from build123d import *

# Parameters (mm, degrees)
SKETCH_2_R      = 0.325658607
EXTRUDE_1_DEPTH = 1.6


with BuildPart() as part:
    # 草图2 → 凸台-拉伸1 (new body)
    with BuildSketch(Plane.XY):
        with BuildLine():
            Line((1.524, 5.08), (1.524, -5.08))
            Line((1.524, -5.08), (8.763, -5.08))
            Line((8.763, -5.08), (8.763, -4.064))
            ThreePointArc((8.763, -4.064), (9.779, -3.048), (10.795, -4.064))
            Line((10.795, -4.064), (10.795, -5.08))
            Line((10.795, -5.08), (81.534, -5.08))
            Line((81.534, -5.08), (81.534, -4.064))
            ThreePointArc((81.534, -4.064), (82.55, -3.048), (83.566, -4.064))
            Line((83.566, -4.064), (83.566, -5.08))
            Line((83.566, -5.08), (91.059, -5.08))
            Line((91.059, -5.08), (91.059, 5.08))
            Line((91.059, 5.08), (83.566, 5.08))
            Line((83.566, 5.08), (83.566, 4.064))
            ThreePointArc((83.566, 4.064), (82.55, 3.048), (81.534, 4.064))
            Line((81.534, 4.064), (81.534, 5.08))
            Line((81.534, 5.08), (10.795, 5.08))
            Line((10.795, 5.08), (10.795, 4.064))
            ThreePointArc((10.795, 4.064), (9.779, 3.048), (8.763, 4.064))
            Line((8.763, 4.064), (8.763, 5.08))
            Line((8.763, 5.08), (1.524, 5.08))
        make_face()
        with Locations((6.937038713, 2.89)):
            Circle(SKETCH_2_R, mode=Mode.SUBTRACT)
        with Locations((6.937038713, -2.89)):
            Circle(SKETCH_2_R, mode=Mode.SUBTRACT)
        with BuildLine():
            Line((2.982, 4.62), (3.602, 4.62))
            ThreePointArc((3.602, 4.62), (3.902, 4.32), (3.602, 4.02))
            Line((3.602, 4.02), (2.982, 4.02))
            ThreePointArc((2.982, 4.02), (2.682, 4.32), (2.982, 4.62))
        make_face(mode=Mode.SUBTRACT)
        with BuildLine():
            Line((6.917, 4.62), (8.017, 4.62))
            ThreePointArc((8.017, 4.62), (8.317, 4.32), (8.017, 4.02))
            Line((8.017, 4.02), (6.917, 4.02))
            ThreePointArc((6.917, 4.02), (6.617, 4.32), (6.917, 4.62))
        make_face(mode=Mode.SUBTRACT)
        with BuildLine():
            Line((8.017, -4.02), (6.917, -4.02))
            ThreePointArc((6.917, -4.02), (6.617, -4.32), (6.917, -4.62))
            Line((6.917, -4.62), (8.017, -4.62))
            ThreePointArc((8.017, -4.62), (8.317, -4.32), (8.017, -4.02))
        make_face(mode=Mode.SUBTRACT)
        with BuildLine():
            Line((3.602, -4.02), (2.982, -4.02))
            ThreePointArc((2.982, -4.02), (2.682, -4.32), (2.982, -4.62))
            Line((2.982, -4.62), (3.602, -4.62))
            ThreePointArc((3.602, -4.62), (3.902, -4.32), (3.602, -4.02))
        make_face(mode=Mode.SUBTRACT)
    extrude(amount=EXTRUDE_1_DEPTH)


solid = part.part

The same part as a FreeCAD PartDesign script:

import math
import FreeCAD as App
import Part
import Sketcher

V = App.Vector
Q = App.Units.Quantity

doc = App.newDocument("Part")
body = doc.addObject("PartDesign::Body", "Body")

sketch1 = body.newObject("Sketcher::SketchObject", "Sketch")
sketch1.AttachmentSupport = (doc.getObject("XY_Plane"), [""])
sketch1.MapMode = "FlatFace"
sketch1.addGeometry(Part.LineSegment(V(1.52, 5.08, 0), V(1.52, -5.08, 0)), False)
sketch1.addGeometry(Part.LineSegment(V(1.52, -5.08, 0), V(8.76, -5.08, 0)), False)
sketch1.addGeometry(Part.LineSegment(V(8.76, -5.08, 0), V(8.76, -4.06, 0)), False)
sketch1.addGeometry(Part.ArcOfCircle(Part.Circle(V(9.78, -4.06, 0), V(0, 0, 1), 1.02), math.radians(0), math.radians(180)), False)
sketch1.addGeometry(Part.LineSegment(V(10.79, -4.06, 0), V(10.79, -5.08, 0)), False)
sketch1.addGeometry(Part.LineSegment(V(10.79, -5.08, 0), V(81.53, -5.08, 0)), False)
sketch1.addGeometry(Part.LineSegment(V(81.53, -5.08, 0), V(81.53, -4.06, 0)), False)
sketch1.addGeometry(Part.ArcOfCircle(Part.Circle(V(82.55, -4.06, 0), V(0, 0, 1), 1.02), math.radians(0), math.radians(180)), False)
sketch1.addGeometry(Part.LineSegment(V(83.57, -4.06, 0), V(83.57, -5.08, 0)), False)
sketch1.addGeometry(Part.LineSegment(V(83.57, -5.08, 0), V(91.06, -5.08, 0)), False)
sketch1.addGeometry(Part.LineSegment(V(91.06, -5.08, 0), V(91.06, 5.08, 0)), False)
sketch1.addGeometry(Part.LineSegment(V(91.06, 5.08, 0), V(83.57, 5.08, 0)), False)
sketch1.addGeometry(Part.LineSegment(V(83.57, 5.08, 0), V(83.57, 4.06, 0)), False)
sketch1.addGeometry(Part.ArcOfCircle(Part.Circle(V(82.55, 4.06, 0), V(0, 0, 1), 1.02), math.radians(180), math.radians(360)), False)
sketch1.addGeometry(Part.LineSegment(V(81.53, 4.06, 0), V(81.53, 5.08, 0)), False)
sketch1.addGeometry(Part.LineSegment(V(81.53, 5.08, 0), V(10.79, 5.08, 0)), False)
sketch1.addGeometry(Part.LineSegment(V(10.79, 5.08, 0), V(10.79, 4.06, 0)), False)
sketch1.addGeometry(Part.ArcOfCircle(Part.Circle(V(9.78, 4.06, 0), V(0, 0, 1), 1.02), math.radians(180), math.radians(360)), False)
sketch1.addGeometry(Part.LineSegment(V(8.76, 4.06, 0), V(8.76, 5.08, 0)), False)
sketch1.addGeometry(Part.LineSegment(V(8.76, 5.08, 0), V(1.52, 5.08, 0)), False)
sketch1.addGeometry(Part.LineSegment(V(2.98, -4.02, 0), V(3.6, -4.02, 0)), False)
sketch1.addGeometry(Part.ArcOfCircle(Part.Circle(V(3.6, -4.32, 0), V(0, 0, 1), 0.3), math.radians(-90), math.radians(90)), False)
sketch1.addGeometry(Part.LineSegment(V(3.6, -4.62, 0), V(2.98, -4.62, 0)), False)
sketch1.addGeometry(Part.ArcOfCircle(Part.Circle(V(2.98, -4.32, 0), V(0, 0, 1), 0.3), math.radians(90), math.radians(270)), False)
sketch1.addGeometry(Part.LineSegment(V(6.92, -4.02, 0), V(8.02, -4.02, 0)), False)
sketch1.addGeometry(Part.ArcOfCircle(Part.Circle(V(8.02, -4.32, 0), V(0, 0, 1), 0.3), math.radians(-90), math.radians(90)), False)
sketch1.addGeometry(Part.LineSegment(V(8.02, -4.62, 0), V(6.92, -4.62, 0)), False)
sketch1.addGeometry(Part.ArcOfCircle(Part.Circle(V(6.92, -4.32, 0), V(0, 0, 1), 0.3), math.radians(90), math.radians(270)), False)
sketch1.addGeometry(Part.Circle(V(6.94, -2.89, 0), V(0, 0, 1), 0.33), False)
sketch1.addGeometry(Part.ArcOfCircle(Part.Circle(V(2.98, 4.32, 0), V(0, 0, 1), 0.3), math.radians(90), math.radians(270)), False)
sketch1.addGeometry(Part.LineSegment(V(2.98, 4.62, 0), V(3.6, 4.62, 0)), False)
sketch1.addGeometry(Part.ArcOfCircle(Part.Circle(V(3.6, 4.32, 0), V(0, 0, 1), 0.3), math.radians(-90), math.radians(90)), False)
sketch1.addGeometry(Part.LineSegment(V(3.6, 4.02, 0), V(2.98, 4.02, 0)), False)
sketch1.addGeometry(Part.Circle(V(6.94, 2.89, 0), V(0, 0, 1), 0.33), False)
sketch1.addGeometry(Part.ArcOfCircle(Part.Circle(V(6.92, 4.32, 0), V(0, 0, 1), 0.3), math.radians(90), math.radians(270)), False)
sketch1.addGeometry(Part.LineSegment(V(6.92, 4.62, 0), V(8.02, 4.62, 0)), False)
sketch1.addGeometry(Part.ArcOfCircle(Part.Circle(V(8.02, 4.32, 0), V(0, 0, 1), 0.3), math.radians(-90), math.radians(90)), False)
sketch1.addGeometry(Part.LineSegment(V(8.02, 4.02, 0), V(6.92, 4.02, 0)), False)
sketch1.addConstraint(Sketcher.Constraint("Coincident", 0, 2, 1, 1))
sketch1.addConstraint(Sketcher.Constraint("Coincident", 1, 2, 2, 1))
sketch1.addConstraint(Sketcher.Constraint("Tangent", 2, 2, 3, 2))
sketch1.addConstraint(Sketcher.Constraint("Tangent", 3, 1, 4, 1))
sketch1.addConstraint(Sketcher.Constraint("Coincident", 4, 2, 5, 1))
sketch1.addConstraint(Sketcher.Constraint("Coincident", 5, 2, 6, 1))
sketch1.addConstraint(Sketcher.Constraint("Tangent", 6, 2, 7, 2))
sketch1.addConstraint(Sketcher.Constraint("Tangent", 7, 1, 8, 1))
sketch1.addConstraint(Sketcher.Constraint("Coincident", 8, 2, 9, 1))
sketch1.addConstraint(Sketcher.Constraint("Coincident", 9, 2, 10, 1))
sketch1.addConstraint(Sketcher.Constraint("Coincident", 10, 2, 11, 1))
sketch1.addConstraint(Sketcher.Constraint("Coincident", 11, 2, 12, 1))
sketch1.addConstraint(Sketcher.Constraint("Tangent", 12, 2, 13, 2))
sketch1.addConstraint(Sketcher.Constraint("Tangent", 13, 1, 14, 1))
sketch1.addConstraint(Sketcher.Constraint("Coincident", 14, 2, 15, 1))
sketch1.addConstraint(Sketcher.Constraint("Coincident", 15, 2, 16, 1))
sketch1.addConstraint(Sketcher.Constraint("Tangent", 16, 2, 17, 2))
sketch1.addConstraint(Sketcher.Constraint("Tangent", 17, 1, 18, 1))
sketch1.addConstraint(Sketcher.Constraint("Coincident", 18, 2, 19, 1))
sketch1.addConstraint(Sketcher.Constraint("Coincident", 19, 2, 0, 1))
sketch1.addConstraint(Sketcher.Constraint("Tangent", 20, 2, 21, 2))
sketch1.addConstraint(Sketcher.Constraint("Tangent", 21, 1, 22, 1))
sketch1.addConstraint(Sketcher.Constraint("Tangent", 22, 2, 23, 2))
sketch1.addConstraint(Sketcher.Constraint("Tangent", 23, 1, 20, 1))
sketch1.addConstraint(Sketcher.Constraint("Tangent", 24, 2, 25, 2))
sketch1.addConstraint(Sketcher.Constraint("Tangent", 25, 1, 26, 1))
sketch1.addConstraint(Sketcher.Constraint("Tangent", 26, 2, 27, 2))
sketch1.addConstraint(Sketcher.Constraint("Tangent", 27, 1, 24, 1))
sketch1.addConstraint(Sketcher.Constraint("Tangent", 29, 1, 30, 1))
sketch1.addConstraint(Sketcher.Constraint("Tangent", 30, 2, 31, 2))
sketch1.addConstraint(Sketcher.Constraint("Tangent", 31, 1, 32, 1))
sketch1.addConstraint(Sketcher.Constraint("Tangent", 32, 2, 29, 2))
sketch1.addConstraint(Sketcher.Constraint("Tangent", 34, 1, 35, 1))
sketch1.addConstraint(Sketcher.Constraint("Tangent", 35, 2, 36, 2))
sketch1.addConstraint(Sketcher.Constraint("Tangent", 36, 1, 37, 1))
sketch1.addConstraint(Sketcher.Constraint("Tangent", 37, 2, 34, 2))
sketch1.addConstraint(Sketcher.Constraint("Vertical", 0))
sketch1.addConstraint(Sketcher.Constraint("Horizontal", 1))
sketch1.addConstraint(Sketcher.Constraint("Vertical", 2))
sketch1.addConstraint(Sketcher.Constraint("Vertical", 4))
sketch1.addConstraint(Sketcher.Constraint("Horizontal", 5))
sketch1.addConstraint(Sketcher.Constraint("Vertical", 6))
sketch1.addConstraint(Sketcher.Constraint("Vertical", 8))
sketch1.addConstraint(Sketcher.Constraint("Horizontal", 9))
sketch1.addConstraint(Sketcher.Constraint("Vertical", 10))
sketch1.addConstraint(Sketcher.Constraint("Horizontal", 11))
sketch1.addConstraint(Sketcher.Constraint("Vertical", 12))
sketch1.addConstraint(Sketcher.Constraint("Vertical", 14))
sketch1.addConstraint(Sketcher.Constraint("Horizontal", 15))
sketch1.addConstraint(Sketcher.Constraint("Vertical", 16))
sketch1.addConstraint(Sketcher.Constraint("Vertical", 18))
sketch1.addConstraint(Sketcher.Constraint("Horizontal", 19))
sketch1.addConstraint(Sketcher.Constraint("Horizontal", 20))
sketch1.addConstraint(Sketcher.Constraint("Horizontal", 22))
sketch1.addConstraint(Sketcher.Constraint("Horizontal", 24))
sketch1.addConstraint(Sketcher.Constraint("Horizontal", 26))
sketch1.addConstraint(Sketcher.Constraint("Horizontal", 30))
sketch1.addConstraint(Sketcher.Constraint("Horizontal", 32))
sketch1.addConstraint(Sketcher.Constraint("Horizontal", 35))
sketch1.addConstraint(Sketcher.Constraint("Horizontal", 37))
sketch1.addConstraint(Sketcher.Constraint("Equal", 3, 7))
sketch1.addConstraint(Sketcher.Constraint("Equal", 7, 13))
sketch1.addConstraint(Sketcher.Constraint("Equal", 13, 17))
sketch1.addConstraint(Sketcher.Constraint("Equal", 23, 25))
sketch1.addConstraint(Sketcher.Constraint("Equal", 27, 29))
sketch1.addConstraint(Sketcher.Constraint("Equal", 28, 33))
sketch1.addConstraint(Sketcher.Constraint("Equal", 31, 34))
sketch1.addConstraint(Sketcher.Constraint("Symmetric", 7, 3, 13, 3, -1))
sketch1.addConstraint(Sketcher.Constraint("Symmetric", 3, 3, 17, 3, -1))
sketch1.addConstraint(Sketcher.Constraint("Symmetric", 23, 3, 29, 3, -1))
sketch1.addConstraint(Sketcher.Constraint("Symmetric", 28, 3, 33, 3, -1))
sketch1.addConstraint(Sketcher.Constraint("Symmetric", 27, 3, 34, 3, -1))
sketch1.addConstraint(Sketcher.Constraint("Horizontal", 3, 3, 7, 3))
sketch1.addConstraint(Sketcher.Constraint("Horizontal", 23, 3, 25, 3))
sketch1.addConstraint(Sketcher.Constraint("Horizontal", 1, 2, 4, 2))
sketch1.addConstraint(Sketcher.Constraint("Horizontal", 5, 2, 8, 2))
sketch1.addConstraint(Sketcher.Constraint("Horizontal", 11, 2, 14, 2))
sketch1.addConstraint(Sketcher.Constraint("Horizontal", 15, 2, 18, 2))
sketch1.addConstraint(Sketcher.Constraint("Vertical", 21, 3, 31, 3))
sketch1.addConstraint(Sketcher.Constraint("Vertical", 25, 3, 36, 3))
sketch1.addConstraint(Sketcher.Constraint("Equal", 8, 12))
sketch1.addConstraint(Sketcher.Constraint("Radius", 3, Q("0.04 in")))
sketch1.addConstraint(Sketcher.Constraint("DistanceY", 0, 2, 0, 1, Q("0.4 in")))
sketch1.addConstraint(Sketcher.Constraint("DistanceY", 2, 1, 2, 2, Q("0.04 in")))
sketch1.addConstraint(Sketcher.Constraint("DistanceX", 1, 1, 1, 2, Q("0.285 in")))
sketch1.addConstraint(Sketcher.Constraint("DistanceX", 5, 1, 5, 2, Q("2.785 in")))
sketch1.addConstraint(Sketcher.Constraint("DistanceX", 9, 1, 9, 2, Q("0.295 in")))
sketch1.addConstraint(Sketcher.Constraint("DistanceX", -1, 1, 7, 3, Q("3.25 in")))
sketch1.addConstraint(Sketcher.Constraint("Radius", 21, Q("0.3 mm")))
sketch1.addConstraint(Sketcher.Constraint("Diameter", 28, Q("0.651317 mm")))
sketch1.addConstraint(Sketcher.Constraint("DistanceX", 20, 1, 20, 2, Q("0.62 mm")))
sketch1.addConstraint(Sketcher.Constraint("DistanceX", 24, 1, 24, 2, Q("1.1 mm")))
sketch1.addConstraint(Sketcher.Constraint("DistanceX", -1, 1, 21, 3, Q("3.602 mm")))
sketch1.addConstraint(Sketcher.Constraint("DistanceY", 21, 3, -1, 1, Q("4.32 mm")))
sketch1.addConstraint(Sketcher.Constraint("DistanceX", -1, 1, 25, 3, Q("8.017 mm")))
sketch1.addConstraint(Sketcher.Constraint("DistanceY", 28, 3, -1, 1, Q("2.89 mm")))
sketch1.addConstraint(Sketcher.Constraint("DistanceX", -1, 1, 28, 3, Q("6.937039 mm")))
pad1 = body.newObject("PartDesign::Pad", "Pad")
pad1.Profile = sketch1
pad1.Length = 1.6

doc.recompute()
